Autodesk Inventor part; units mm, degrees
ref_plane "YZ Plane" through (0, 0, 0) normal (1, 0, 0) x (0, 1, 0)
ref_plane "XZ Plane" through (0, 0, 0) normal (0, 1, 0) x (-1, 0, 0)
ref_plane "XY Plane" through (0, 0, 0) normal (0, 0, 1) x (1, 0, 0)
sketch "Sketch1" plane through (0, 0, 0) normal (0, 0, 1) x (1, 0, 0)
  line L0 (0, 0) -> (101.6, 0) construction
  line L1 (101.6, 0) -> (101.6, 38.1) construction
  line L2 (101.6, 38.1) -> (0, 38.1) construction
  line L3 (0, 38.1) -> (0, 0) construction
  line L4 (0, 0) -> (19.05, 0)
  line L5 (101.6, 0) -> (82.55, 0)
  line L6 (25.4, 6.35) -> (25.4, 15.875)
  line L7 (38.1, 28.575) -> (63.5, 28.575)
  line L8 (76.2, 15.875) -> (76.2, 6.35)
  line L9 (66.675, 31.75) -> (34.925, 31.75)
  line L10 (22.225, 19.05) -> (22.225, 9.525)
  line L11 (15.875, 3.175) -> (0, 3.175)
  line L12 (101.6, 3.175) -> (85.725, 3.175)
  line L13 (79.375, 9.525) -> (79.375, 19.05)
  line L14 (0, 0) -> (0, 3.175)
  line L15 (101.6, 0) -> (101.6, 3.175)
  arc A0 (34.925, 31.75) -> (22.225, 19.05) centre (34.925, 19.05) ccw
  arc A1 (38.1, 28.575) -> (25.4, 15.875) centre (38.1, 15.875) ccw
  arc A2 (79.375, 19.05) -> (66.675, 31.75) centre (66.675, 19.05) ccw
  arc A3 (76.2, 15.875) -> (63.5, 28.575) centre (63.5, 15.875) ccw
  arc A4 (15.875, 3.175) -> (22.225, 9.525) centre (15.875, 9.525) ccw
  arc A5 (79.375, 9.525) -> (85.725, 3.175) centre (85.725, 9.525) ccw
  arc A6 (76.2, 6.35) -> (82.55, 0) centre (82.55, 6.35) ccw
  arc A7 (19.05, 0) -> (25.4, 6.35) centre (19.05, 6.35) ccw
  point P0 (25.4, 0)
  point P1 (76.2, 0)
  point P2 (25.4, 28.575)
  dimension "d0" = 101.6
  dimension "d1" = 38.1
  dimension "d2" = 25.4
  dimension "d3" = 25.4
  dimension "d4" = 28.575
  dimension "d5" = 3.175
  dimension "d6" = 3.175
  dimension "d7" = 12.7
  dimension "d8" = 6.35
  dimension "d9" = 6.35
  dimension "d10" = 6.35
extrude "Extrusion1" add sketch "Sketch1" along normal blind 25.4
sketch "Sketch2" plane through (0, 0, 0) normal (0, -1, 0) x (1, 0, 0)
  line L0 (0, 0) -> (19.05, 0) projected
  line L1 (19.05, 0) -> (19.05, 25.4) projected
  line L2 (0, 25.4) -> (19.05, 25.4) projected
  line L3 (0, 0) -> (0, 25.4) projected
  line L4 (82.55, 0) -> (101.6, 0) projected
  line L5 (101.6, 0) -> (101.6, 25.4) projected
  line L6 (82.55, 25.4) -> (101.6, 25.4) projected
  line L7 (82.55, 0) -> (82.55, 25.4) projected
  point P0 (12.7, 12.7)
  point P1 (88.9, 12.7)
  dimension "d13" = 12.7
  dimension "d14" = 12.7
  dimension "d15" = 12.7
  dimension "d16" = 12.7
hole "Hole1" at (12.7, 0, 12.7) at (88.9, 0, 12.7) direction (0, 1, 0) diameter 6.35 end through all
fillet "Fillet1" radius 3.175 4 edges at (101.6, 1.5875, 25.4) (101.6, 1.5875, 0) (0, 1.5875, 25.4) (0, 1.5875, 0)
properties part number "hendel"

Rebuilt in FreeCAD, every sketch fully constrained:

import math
import FreeCAD as App
import Part
import Sketcher
Q = App.Units.Quantity


def edges_at(feature, points):
    """Names of the edges that pass closest to the given points."""
    edges = feature.Shape.Edges
    near = lambda p: min(range(len(edges)), key=lambda i: edges[i].distToShape(Part.Vertex(*p))[0])
    return sorted({f"Edge{near(p) + 1}" for p in points})

doc = App.newDocument("Part")
body = doc.addObject("PartDesign::Body", "Body")

# Sketch on XY plane
sketch1 = doc.addObject("Sketcher::SketchObject", "Sketch")
body.addObject(sketch1)
sketch1.AttachmentSupport = (doc.XY_Plane, [""])
sketch1.MapMode = "FlatFace"
sketch1.addGeometry([
    Part.LineSegment(App.Vector(0, 3.175, 0), App.Vector(0, 0, 0)),  # 0
    Part.LineSegment(App.Vector(0, 0, 0), App.Vector(19.05, 0, 0)),  # 1
    Part.ArcOfCircle(Part.Circle(App.Vector(19.05, 6.35, 0), App.Vector(0, 0, 1), 6.35), math.radians(-90), math.radians(0)),  # 2
    Part.LineSegment(App.Vector(25.4, 6.35, 0), App.Vector(25.4, 15.875, 0)),  # 3
    Part.ArcOfCircle(Part.Circle(App.Vector(38.1, 15.875, 0), App.Vector(0, 0, 1), 12.7), math.radians(90), math.radians(180)),  # 4
    Part.LineSegment(App.Vector(38.1, 28.575, 0), App.Vector(63.5, 28.575, 0)),  # 5
    Part.ArcOfCircle(Part.Circle(App.Vector(63.5, 15.875, 0), App.Vector(0, 0, 1), 12.7), math.radians(0), math.radians(90)),  # 6
    Part.LineSegment(App.Vector(76.2, 15.875, 0), App.Vector(76.2, 6.35, 0)),  # 7
    Part.ArcOfCircle(Part.Circle(App.Vector(82.55, 6.35, 0), App.Vector(0, 0, 1), 6.35), math.radians(180), math.radians(270)),  # 8
    Part.LineSegment(App.Vector(82.55, 0, 0), App.Vector(101.6, 0, 0)),  # 9
    Part.LineSegment(App.Vector(101.6, 0, 0), App.Vector(101.6, 3.175, 0)),  # 10
    Part.LineSegment(App.Vector(101.6, 3.175, 0), App.Vector(85.725, 3.175, 0)),  # 11
    Part.ArcOfCircle(Part.Circle(App.Vector(85.725, 9.525, 0), App.Vector(0, 0, 1), 6.35), math.radians(180), math.radians(270)),  # 12
    Part.LineSegment(App.Vector(79.375, 9.525, 0), App.Vector(79.375, 19.05, 0)),  # 13
    Part.ArcOfCircle(Part.Circle(App.Vector(66.675, 19.05, 0), App.Vector(0, 0, 1), 12.7), math.radians(0), math.radians(90)),  # 14
    Part.LineSegment(App.Vector(66.675, 31.75, 0), App.Vector(34.925, 31.75, 0)),  # 15
    Part.ArcOfCircle(Part.Circle(App.Vector(34.925, 19.05, 0), App.Vector(0, 0, 1), 12.7), math.radians(90), math.radians(180)),  # 16
    Part.LineSegment(App.Vector(22.225, 19.05, 0), App.Vector(22.225, 9.525, 0)),  # 17
    Part.ArcOfCircle(Part.Circle(App.Vector(15.875, 9.525, 0), App.Vector(0, 0, 1), 6.35), math.radians(-90), math.radians(0)),  # 18
    Part.LineSegment(App.Vector(15.875, 3.175, 0), App.Vector(0, 3.175, 0)),  # 19
], False)
sketch1.addConstraint([
    Sketcher.Constraint("Coincident", 0, 2, 1, 1),
    Sketcher.Constraint("Tangent", 1, 2, 2, 1),
    Sketcher.Constraint("Tangent", 2, 2, 3, 1),
    Sketcher.Constraint("Tangent", 3, 2, 4, 2),
    Sketcher.Constraint("Tangent", 4, 1, 5, 1),
    Sketcher.Constraint("Tangent", 5, 2, 6, 2),
    Sketcher.Constraint("Tangent", 6, 1, 7, 1),
    Sketcher.Constraint("Tangent", 7, 2, 8, 1),
    Sketcher.Constraint("Tangent", 8, 2, 9, 1),
    Sketcher.Constraint("Coincident", 9, 2, 10, 1),
    Sketcher.Constraint("Coincident", 10, 2, 11, 1),
    Sketcher.Constraint("Tangent", 11, 2, 12, 2),
    Sketcher.Constraint("Tangent", 12, 1, 13, 1),
    Sketcher.Constraint("Tangent", 13, 2, 14, 1),
    Sketcher.Constraint("Tangent", 14, 2, 15, 1),
    Sketcher.Constraint("Tangent", 15, 2, 16, 1),
    Sketcher.Constraint("Tangent", 16, 2, 17, 1),
    Sketcher.Constraint("Tangent", 17, 2, 18, 2),
    Sketcher.Constraint("Tangent", 18, 1, 19, 1),
    Sketcher.Constraint("Coincident", 19, 2, 0, 1),
    Sketcher.Constraint("Vertical", 0),
    Sketcher.Constraint("Horizontal", 1),
    Sketcher.Constraint("Vertical", 3),
    Sketcher.Constraint("Horizontal", 5),
    Sketcher.Constraint("Vertical", 7),
    Sketcher.Constraint("Horizontal", 9),
    Sketcher.Constraint("Vertical", 10),
    Sketcher.Constraint("Horizontal", 11),
    Sketcher.Constraint("Vertical", 13),
    Sketcher.Constraint("Horizontal", 15),
    Sketcher.Constraint("Vertical", 17),
    Sketcher.Constraint("Horizontal", 19),
    Sketcher.Constraint("Coincident", 0, 2, -1, 1),
    Sketcher.Constraint("Equal", 4, 6),
    Sketcher.Constraint("Equal", 2, 8),
    Sketcher.Constraint("Equal", 8, 12),
    Sketcher.Constraint("Equal", 6, 14),
    Sketcher.Constraint("Equal", 14, 16),
    Sketcher.Constraint("Equal", 12, 18),
    Sketcher.Constraint("PointOnObject", 8, 2, -1),
    Sketcher.Constraint("Horizontal", 12, 3, 18, 3),
    Sketcher.Constraint("Equal", 1, 9),
    Sketcher.Constraint("Equal", 11, 19),
    Sketcher.Constraint("Equal", 7, 13),
    Sketcher.Constraint("Radius", 4, Q("0.5 in")),
    Sketcher.Constraint("DistanceX", 5, 1, 5, 2, Q("1 in")),
    Sketcher.Constraint("Radius", 2, Q("0.25 in")),
    Sketcher.Constraint("DistanceX", -1, 1, 2, 2, Q("1 in")),
    Sketcher.Constraint("DistanceY", 2, 2, 15, 2, Q("1 in")),
    Sketcher.Constraint("DistanceY", 11, 2, 6, 1, Q("0.5 in")),
    Sketcher.Constraint("DistanceX", 8, 3, 12, 3, Q("0.125 in")),
])
pad1 = doc.addObject("PartDesign::Pad", "Pad")
body.addObject(pad1)
pad1.Profile = sketch1
pad1.Length = Q("1 in")

# Sketch on XZ plane
sketch2 = doc.addObject("Sketcher::SketchObject", "Sketch001")
body.addObject(sketch2)
sketch2.AttachmentSupport = (doc.XZ_Plane, [""])
sketch2.MapMode = "FlatFace"
sketch2.addGeometry([
    Part.Circle(App.Vector(12.7, 12.7, 0), App.Vector(0, 0, 1), 3.175),
    Part.Circle(App.Vector(88.9, 12.7, 0), App.Vector(0, 0, 1), 3.175),
], False)
sketch2.addConstraint([
    Sketcher.Constraint("Equal", 0, 1),
    Sketcher.Constraint("Horizontal", 0, 3, 1, 3),
    Sketcher.Constraint("Diameter", 0, Q("0.25 in")),
    Sketcher.Constraint("DistanceX", 0, 3, 1, 3, Q("3 in")),
    Sketcher.Constraint("DistanceX", -1, 1, 0, 3, Q("0.5 in")),
    Sketcher.Constraint("DistanceY", -1, 1, 0, 3, Q("0.5 in")),
])
doc.recompute()
hole = doc.addObject("PartDesign::Hole", "Hole")
body.addObject(hole)
hole.Profile = sketch2
hole.ThreadType = "None"
hole.Diameter = Q("0.25 in")
hole.DepthType = "ThroughAll"
doc.recompute()

fillet = doc.addObject("PartDesign::Fillet", "Fillet")
body.addObject(fillet)
fillet.Base = (hole, edges_at(hole, [
    (101.6, 1.587, 25.4),
    (101.6, 1.587, 0),
    (0, 1.587, 25.4),
    (0, 1.587, 0),
]))
fillet.Radius = Q("0.125 in")

doc.recompute()
